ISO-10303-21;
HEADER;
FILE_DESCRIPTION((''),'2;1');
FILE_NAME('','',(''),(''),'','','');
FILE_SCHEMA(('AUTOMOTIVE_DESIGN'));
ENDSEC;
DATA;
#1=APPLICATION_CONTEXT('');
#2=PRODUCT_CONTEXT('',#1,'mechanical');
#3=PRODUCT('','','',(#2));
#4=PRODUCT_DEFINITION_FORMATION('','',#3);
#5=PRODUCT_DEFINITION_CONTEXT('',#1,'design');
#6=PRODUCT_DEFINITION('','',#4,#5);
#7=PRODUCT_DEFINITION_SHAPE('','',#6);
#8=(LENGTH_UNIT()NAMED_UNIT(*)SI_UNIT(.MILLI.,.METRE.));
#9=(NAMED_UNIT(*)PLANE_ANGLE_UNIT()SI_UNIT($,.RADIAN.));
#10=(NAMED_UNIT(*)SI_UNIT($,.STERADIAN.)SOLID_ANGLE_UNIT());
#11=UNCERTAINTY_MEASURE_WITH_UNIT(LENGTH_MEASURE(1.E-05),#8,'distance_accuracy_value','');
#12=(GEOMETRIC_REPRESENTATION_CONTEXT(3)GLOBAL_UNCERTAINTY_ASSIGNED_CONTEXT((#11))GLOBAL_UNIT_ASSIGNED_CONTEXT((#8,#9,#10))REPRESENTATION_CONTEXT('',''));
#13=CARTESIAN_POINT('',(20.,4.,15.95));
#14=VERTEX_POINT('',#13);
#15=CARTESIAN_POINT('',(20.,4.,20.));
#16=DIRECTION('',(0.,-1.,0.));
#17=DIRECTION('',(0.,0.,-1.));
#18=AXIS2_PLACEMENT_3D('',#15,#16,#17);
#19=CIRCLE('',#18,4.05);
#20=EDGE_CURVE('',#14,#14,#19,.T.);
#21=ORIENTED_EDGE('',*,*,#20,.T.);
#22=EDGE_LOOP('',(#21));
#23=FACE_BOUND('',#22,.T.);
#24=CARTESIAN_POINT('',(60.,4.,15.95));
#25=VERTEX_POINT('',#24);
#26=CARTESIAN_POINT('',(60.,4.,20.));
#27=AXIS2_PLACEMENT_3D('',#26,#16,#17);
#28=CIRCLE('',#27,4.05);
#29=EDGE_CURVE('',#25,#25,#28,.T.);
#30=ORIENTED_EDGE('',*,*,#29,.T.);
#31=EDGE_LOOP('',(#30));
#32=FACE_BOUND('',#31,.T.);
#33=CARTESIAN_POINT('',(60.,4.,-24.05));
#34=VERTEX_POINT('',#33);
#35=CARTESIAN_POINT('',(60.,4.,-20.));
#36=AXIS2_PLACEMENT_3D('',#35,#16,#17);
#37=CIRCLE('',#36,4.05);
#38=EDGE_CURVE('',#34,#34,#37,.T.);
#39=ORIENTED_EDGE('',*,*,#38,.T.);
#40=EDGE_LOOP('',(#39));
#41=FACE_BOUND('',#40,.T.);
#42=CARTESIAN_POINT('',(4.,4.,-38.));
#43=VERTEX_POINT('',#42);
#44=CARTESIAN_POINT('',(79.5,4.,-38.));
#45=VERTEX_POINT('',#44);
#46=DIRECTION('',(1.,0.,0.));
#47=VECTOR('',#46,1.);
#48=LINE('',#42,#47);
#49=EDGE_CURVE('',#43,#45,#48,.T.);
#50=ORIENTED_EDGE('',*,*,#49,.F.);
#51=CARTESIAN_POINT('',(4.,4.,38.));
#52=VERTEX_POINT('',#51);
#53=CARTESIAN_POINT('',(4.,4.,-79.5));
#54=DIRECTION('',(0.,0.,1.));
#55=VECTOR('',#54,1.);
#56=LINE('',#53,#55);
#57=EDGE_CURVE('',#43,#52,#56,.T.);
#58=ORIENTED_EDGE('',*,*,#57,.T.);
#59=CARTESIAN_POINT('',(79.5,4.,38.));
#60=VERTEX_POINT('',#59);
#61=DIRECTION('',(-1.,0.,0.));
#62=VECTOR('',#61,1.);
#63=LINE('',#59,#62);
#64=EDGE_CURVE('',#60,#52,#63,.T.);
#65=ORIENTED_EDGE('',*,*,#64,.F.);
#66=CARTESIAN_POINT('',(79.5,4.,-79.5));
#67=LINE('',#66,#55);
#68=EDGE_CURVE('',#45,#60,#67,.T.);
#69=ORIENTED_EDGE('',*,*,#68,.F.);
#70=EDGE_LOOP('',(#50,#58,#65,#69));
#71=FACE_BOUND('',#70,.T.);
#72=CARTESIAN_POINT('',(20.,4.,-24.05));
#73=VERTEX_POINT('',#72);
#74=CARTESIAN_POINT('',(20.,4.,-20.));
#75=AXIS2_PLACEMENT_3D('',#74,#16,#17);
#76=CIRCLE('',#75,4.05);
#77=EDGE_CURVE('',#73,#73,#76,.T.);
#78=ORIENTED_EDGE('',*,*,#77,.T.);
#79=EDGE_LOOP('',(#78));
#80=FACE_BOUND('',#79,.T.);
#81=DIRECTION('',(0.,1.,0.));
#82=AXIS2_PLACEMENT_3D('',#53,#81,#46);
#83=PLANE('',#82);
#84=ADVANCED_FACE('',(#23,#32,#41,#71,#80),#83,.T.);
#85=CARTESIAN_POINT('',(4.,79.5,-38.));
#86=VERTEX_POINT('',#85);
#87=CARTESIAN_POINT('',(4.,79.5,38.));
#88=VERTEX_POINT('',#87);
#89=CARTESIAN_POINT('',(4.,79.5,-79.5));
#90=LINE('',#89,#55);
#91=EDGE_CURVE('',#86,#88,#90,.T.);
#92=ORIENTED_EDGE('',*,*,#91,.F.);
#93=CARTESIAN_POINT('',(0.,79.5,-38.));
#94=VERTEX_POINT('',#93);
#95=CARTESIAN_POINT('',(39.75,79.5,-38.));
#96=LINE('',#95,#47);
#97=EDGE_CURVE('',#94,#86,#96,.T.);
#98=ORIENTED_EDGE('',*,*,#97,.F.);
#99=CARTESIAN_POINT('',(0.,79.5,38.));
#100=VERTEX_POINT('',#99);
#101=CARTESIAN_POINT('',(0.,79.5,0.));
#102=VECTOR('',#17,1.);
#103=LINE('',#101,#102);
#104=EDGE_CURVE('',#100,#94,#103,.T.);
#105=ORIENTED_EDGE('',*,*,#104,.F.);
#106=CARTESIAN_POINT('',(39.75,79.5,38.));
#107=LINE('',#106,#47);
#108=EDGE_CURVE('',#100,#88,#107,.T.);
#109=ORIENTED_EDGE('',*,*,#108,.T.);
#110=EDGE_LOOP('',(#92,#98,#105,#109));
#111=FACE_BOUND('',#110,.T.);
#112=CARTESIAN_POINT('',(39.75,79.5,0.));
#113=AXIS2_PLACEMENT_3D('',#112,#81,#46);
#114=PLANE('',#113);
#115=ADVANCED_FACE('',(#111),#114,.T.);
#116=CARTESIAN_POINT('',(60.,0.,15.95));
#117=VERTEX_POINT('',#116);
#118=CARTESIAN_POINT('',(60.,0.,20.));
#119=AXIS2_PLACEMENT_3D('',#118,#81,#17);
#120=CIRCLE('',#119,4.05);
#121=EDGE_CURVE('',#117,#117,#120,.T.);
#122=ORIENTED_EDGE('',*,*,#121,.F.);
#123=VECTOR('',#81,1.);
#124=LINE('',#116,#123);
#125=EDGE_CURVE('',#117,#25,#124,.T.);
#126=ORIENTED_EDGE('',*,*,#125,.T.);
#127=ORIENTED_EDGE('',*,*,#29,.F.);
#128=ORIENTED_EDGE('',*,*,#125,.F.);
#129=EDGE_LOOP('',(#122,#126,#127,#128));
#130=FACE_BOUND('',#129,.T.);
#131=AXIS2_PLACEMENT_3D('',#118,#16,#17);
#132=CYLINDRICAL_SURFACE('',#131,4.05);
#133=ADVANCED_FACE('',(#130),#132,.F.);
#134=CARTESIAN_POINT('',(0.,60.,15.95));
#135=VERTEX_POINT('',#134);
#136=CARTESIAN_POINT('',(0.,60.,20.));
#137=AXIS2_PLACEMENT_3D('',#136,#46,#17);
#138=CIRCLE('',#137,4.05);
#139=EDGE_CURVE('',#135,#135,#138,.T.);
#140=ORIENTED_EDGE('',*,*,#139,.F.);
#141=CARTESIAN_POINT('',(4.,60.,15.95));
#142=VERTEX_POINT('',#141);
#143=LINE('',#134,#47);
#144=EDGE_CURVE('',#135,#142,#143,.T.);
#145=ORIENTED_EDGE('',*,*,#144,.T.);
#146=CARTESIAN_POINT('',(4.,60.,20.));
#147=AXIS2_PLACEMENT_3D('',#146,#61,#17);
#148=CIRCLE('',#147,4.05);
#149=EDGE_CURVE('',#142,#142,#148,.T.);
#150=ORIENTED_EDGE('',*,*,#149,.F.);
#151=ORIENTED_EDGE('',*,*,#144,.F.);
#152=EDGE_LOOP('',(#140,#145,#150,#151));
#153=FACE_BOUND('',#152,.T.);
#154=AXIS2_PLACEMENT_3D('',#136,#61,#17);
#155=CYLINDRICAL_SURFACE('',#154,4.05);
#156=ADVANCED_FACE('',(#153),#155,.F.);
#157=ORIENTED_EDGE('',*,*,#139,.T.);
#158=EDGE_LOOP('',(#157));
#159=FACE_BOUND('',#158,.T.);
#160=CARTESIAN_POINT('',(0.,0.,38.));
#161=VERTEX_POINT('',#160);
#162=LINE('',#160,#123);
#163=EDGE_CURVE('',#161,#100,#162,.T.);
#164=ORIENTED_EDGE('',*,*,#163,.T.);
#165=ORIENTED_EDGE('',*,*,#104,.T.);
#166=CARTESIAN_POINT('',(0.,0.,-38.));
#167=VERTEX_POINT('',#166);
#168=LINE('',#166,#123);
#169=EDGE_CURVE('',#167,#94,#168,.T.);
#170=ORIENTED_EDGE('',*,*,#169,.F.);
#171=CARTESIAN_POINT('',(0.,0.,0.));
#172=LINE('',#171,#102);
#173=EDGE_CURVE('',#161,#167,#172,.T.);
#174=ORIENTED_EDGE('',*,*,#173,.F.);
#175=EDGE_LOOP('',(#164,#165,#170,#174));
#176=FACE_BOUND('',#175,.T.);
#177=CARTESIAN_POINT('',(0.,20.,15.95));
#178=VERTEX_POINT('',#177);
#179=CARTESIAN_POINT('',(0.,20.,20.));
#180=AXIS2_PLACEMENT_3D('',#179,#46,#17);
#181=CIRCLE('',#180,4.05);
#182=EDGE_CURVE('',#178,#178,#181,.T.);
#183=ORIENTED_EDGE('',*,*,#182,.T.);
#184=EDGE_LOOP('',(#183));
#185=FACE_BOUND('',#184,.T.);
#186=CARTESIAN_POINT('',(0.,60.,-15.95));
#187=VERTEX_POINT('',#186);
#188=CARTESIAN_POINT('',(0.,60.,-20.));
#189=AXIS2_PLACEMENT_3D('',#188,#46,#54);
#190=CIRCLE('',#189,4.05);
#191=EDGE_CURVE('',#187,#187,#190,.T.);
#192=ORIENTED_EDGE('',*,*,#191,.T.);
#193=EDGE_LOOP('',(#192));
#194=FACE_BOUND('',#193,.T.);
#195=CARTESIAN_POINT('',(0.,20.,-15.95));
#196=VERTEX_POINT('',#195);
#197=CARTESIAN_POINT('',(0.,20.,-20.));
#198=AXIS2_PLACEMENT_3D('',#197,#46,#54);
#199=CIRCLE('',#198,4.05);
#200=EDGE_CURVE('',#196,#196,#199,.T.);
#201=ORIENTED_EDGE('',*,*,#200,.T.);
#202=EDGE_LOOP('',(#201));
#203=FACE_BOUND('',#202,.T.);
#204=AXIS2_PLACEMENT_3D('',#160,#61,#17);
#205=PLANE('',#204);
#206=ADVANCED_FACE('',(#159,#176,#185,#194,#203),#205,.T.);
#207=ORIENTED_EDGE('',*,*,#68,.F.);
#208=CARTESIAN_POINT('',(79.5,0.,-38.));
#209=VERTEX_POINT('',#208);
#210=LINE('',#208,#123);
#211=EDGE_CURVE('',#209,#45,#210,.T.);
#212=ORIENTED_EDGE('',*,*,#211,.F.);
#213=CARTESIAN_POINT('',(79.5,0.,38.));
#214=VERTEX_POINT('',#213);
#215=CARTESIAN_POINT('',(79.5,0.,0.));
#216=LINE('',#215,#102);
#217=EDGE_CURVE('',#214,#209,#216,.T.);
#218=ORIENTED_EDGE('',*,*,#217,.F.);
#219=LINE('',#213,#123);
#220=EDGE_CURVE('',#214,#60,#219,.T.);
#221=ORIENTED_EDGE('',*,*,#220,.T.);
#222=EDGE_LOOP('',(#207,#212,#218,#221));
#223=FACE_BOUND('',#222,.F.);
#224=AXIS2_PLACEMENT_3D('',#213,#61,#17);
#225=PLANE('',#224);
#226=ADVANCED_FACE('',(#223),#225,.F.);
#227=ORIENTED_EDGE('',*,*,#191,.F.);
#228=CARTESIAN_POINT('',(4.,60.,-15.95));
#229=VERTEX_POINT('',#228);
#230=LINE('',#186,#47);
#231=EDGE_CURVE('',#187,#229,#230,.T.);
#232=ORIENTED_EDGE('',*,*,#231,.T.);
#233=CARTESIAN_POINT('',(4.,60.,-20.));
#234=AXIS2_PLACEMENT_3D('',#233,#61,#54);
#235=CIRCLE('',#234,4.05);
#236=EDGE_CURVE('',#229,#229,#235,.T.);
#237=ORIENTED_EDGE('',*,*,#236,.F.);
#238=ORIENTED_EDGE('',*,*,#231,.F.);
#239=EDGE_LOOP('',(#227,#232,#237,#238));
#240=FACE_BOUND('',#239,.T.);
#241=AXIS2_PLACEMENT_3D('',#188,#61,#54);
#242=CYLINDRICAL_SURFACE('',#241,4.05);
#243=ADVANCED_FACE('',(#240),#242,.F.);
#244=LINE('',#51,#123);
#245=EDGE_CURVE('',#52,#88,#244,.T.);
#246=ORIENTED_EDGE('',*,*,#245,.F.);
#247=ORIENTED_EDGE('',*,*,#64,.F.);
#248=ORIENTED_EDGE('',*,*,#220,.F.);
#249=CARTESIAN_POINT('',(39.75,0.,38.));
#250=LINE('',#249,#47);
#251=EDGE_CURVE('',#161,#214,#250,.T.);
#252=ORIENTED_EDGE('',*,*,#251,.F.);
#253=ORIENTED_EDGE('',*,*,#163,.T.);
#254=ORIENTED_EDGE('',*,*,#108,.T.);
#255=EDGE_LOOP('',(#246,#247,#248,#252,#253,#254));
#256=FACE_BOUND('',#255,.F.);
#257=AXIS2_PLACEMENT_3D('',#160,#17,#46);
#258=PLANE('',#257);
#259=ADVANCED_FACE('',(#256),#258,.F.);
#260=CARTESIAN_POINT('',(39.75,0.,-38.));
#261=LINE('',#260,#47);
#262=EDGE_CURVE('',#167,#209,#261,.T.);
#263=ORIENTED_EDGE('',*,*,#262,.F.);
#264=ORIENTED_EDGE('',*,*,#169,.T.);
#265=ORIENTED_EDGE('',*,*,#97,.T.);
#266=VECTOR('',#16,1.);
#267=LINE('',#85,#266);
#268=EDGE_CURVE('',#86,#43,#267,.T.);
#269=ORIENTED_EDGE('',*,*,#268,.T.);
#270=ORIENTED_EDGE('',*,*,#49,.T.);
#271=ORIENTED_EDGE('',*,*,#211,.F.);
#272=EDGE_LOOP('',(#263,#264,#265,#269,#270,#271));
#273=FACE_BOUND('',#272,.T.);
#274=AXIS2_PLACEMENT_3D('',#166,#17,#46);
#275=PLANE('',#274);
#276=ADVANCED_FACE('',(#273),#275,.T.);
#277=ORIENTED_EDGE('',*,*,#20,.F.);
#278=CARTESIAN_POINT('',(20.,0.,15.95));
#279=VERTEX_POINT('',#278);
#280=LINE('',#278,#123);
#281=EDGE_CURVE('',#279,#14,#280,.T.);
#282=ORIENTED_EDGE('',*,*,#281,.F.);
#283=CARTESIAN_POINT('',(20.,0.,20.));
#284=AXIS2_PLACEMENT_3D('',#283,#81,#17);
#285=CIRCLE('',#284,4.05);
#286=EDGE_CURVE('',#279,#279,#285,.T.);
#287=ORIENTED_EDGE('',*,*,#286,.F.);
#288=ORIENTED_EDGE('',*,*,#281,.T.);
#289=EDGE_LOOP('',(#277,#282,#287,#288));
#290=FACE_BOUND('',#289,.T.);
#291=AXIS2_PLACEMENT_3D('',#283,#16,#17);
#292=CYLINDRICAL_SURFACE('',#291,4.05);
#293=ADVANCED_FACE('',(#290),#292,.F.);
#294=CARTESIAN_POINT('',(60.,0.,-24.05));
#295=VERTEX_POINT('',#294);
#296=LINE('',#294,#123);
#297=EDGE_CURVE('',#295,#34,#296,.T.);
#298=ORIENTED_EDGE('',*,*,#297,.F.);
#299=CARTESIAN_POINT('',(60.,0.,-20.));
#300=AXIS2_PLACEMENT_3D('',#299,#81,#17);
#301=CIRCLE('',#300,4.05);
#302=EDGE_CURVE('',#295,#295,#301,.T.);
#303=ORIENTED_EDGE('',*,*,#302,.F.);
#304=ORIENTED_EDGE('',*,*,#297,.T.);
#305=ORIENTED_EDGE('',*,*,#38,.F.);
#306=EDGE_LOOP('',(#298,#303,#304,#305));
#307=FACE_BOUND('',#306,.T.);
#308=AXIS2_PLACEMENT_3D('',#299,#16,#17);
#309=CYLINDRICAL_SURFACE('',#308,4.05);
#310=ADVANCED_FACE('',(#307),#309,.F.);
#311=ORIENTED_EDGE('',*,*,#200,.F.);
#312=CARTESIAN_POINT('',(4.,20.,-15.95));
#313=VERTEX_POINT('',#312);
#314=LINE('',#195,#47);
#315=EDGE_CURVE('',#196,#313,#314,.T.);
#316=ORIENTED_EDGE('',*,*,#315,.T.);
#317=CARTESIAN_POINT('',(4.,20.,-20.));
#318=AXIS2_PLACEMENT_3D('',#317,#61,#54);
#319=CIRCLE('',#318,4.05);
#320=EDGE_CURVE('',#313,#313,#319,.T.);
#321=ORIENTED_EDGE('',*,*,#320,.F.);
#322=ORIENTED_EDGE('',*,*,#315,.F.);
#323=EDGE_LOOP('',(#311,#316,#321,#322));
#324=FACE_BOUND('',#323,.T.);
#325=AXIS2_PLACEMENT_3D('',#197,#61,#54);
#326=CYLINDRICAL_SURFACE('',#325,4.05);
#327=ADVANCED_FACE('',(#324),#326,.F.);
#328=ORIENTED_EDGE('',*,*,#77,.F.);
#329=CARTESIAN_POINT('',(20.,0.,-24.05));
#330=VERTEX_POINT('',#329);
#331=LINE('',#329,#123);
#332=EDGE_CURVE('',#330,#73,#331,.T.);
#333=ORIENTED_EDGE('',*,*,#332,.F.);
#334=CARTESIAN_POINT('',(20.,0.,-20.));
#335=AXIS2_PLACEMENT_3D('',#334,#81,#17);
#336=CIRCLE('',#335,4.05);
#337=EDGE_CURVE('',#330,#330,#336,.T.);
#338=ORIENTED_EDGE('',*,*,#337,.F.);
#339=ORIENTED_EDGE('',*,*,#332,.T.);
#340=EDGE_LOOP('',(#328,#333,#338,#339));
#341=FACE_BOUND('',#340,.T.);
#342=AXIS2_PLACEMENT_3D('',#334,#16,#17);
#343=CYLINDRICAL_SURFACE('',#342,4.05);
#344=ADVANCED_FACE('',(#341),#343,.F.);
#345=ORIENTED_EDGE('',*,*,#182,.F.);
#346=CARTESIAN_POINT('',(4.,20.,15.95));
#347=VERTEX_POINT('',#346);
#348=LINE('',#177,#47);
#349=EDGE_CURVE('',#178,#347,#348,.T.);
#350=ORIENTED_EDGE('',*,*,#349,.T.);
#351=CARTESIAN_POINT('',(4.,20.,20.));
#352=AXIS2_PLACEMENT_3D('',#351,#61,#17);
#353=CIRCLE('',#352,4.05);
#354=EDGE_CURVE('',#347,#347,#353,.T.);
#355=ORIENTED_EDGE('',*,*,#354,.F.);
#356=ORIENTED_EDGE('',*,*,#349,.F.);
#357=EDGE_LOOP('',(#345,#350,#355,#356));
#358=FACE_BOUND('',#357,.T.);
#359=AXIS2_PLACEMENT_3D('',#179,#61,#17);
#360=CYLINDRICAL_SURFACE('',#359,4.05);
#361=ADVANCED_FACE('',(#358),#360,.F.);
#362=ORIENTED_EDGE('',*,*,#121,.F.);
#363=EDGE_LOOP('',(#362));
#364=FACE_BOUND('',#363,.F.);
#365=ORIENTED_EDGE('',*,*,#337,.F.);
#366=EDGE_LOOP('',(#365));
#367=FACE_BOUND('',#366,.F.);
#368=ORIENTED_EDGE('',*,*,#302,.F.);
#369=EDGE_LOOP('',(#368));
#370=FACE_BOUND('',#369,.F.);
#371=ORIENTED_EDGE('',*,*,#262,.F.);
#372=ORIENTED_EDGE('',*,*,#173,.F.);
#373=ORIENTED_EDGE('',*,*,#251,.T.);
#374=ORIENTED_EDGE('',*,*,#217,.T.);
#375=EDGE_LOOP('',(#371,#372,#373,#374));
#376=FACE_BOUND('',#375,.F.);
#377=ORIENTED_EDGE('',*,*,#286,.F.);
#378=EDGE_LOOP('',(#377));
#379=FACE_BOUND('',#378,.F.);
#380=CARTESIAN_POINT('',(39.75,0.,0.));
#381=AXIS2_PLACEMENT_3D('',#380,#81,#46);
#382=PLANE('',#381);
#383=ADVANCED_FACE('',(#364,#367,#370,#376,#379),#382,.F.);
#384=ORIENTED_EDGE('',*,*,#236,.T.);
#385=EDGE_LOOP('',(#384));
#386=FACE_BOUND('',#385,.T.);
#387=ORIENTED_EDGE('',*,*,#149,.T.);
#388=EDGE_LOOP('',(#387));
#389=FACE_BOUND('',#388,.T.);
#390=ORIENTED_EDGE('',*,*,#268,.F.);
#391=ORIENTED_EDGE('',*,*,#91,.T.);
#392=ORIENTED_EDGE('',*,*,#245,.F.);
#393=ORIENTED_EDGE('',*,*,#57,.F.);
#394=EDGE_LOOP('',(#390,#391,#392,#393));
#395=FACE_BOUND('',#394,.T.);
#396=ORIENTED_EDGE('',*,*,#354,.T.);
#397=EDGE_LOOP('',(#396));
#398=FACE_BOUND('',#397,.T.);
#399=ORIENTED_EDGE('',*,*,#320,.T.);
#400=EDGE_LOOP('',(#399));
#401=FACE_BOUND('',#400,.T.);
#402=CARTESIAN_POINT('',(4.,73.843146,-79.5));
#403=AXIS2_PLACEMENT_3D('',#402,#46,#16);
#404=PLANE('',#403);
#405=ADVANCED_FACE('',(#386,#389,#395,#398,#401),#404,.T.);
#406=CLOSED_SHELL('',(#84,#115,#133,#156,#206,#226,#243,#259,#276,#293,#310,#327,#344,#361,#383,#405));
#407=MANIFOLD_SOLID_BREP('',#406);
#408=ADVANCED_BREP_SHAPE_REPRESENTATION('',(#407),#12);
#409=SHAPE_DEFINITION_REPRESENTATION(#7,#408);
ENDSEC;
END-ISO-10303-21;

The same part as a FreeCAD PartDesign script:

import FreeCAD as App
import Part
import Sketcher

V = App.Vector


def add_polygon(sketch, points):
    """Adds a closed chain of lines whose ends are joined by coincident constraints."""
    first, n = sketch.GeometryCount, len(points)
    for a, b in zip(points, points[1:] + points[:1]):
        sketch.addGeometry(Part.LineSegment(App.Vector(*a, 0), App.Vector(*b, 0)), False)
    for i in range(n):
        sketch.addConstraint(Sketcher.Constraint("Coincident", first + i, 2, first + (i + 1) % n, 1))

doc = App.newDocument("Part")
body = doc.addObject("PartDesign::Body", "Body")

sketch1 = body.newObject("Sketcher::SketchObject", "Sketch")
sketch1.AttachmentSupport = (doc.getObject("XZ_Plane"), [""])
sketch1.MapMode = "FlatFace"
add_polygon(sketch1, [(0, -38), (0, 38), (79.5, 38), (79.5, -38)])
sketch1.addGeometry(Part.Circle(V(20, 20, 0), V(0, 0, 1), 4), False)
sketch1.addGeometry(Part.Circle(V(60, 20, 0), V(0, 0, 1), 4), False)
sketch1.addGeometry(Part.Circle(V(20, -20, 0), V(0, 0, 1), 4), False)
sketch1.addGeometry(Part.Circle(V(60, -20, 0), V(0, 0, 1), 4), False)
sketch1.addConstraint([
    Sketcher.Constraint("Vertical", 0),
    Sketcher.Constraint("Horizontal", 1),
    Sketcher.Constraint("Vertical", 2),
    Sketcher.Constraint("Horizontal", 3),
    Sketcher.Constraint("Equal", 4, 5),
    Sketcher.Constraint("Equal", 5, 6),
    Sketcher.Constraint("Equal", 6, 7),
    Sketcher.Constraint("Symmetric", 0, 2, 3, 2, -1, 1),
    Sketcher.Constraint("Symmetric", 4, 3, 6, 3, -1),
    Sketcher.Constraint("Symmetric", 5, 3, 7, 3, -1),
    Sketcher.Constraint("Horizontal", 4, 3, 5, 3),
    Sketcher.Constraint("Diameter", 4, 8.1),
    Sketcher.Constraint("DistanceY", 0, 1, 0, 2, 76.0),
    Sketcher.Constraint("DistanceX", 1, 1, 1, 2, 79.5),
    Sketcher.Constraint("DistanceX", -1, 1, 4, 3, 20.0),
    Sketcher.Constraint("DistanceY", -1, 1, 4, 3, 20.0),
    Sketcher.Constraint("DistanceX", -1, 1, 5, 3, 60.0),
])
pad1 = body.newObject("PartDesign::Pad", "Pad")
pad1.Profile = sketch1
pad1.Length = 79.5
pad1.Reversed = True

sketch2 = body.newObject("Sketcher::SketchObject", "Sketch001")
sketch2.AttachmentSupport = (doc.getObject("YZ_Plane"), [""])
sketch2.MapMode = "FlatFace"
sketch2.addGeometry([
    Part.Circle(V(60, 20, 0), V(0, 0, 1), 4),
    Part.Circle(V(60, -20, 0), V(0, 0, 1), 4),
    Part.Circle(V(20, -20, 0), V(0, 0, 1), 4),
    Part.Circle(V(20, 20, 0), V(0, 0, 1), 4),
], False)
sketch2.addConstraint([
    Sketcher.Constraint("Equal", 0, 1),
    Sketcher.Constraint("Equal", 1, 2),
    Sketcher.Constraint("Equal", 2, 3),
    Sketcher.Constraint("Symmetric", 0, 3, 1, 3, -1),
    Sketcher.Constraint("Symmetric", 2, 3, 3, 3, -1),
    Sketcher.Constraint("Horizontal", 1, 3, 2, 3),
    Sketcher.Constraint("Diameter", 0, 8.1),
    Sketcher.Constraint("DistanceX", -1, 1, 0, 3, 60.0),
    Sketcher.Constraint("DistanceY", -1, 1, 0, 3, 20.0),
    Sketcher.Constraint("DistanceX", -1, 1, 2, 3, 20.0),
])
pocket1 = body.newObject("PartDesign::Pocket", "Pocket")
pocket1.Profile = sketch2
pocket1.Length = 79.5
pocket1.Reversed = True

sketch3 = body.newObject("Sketcher::SketchObject", "Sketch002")
sketch3.AttachmentSupport = (doc.getObject("XY_Plane"), [""])
sketch3.MapMode = "FlatFace"
add_polygon(sketch3, [(4, 74), (4, 4), (74, 4)])
add_polygon(sketch3, [(4, 80), (80, 4), (80, 80)])
sketch3.addConstraint([
    Sketcher.Constraint("Vertical", 0),
    Sketcher.Constraint("Horizontal", 1),
    Sketcher.Constraint("Vertical", 4),
    Sketcher.Constraint("Horizontal", 5),
    Sketcher.Constraint("Parallel", 2, 3),
    Sketcher.Constraint("Horizontal", 1, 2, 3, 2),
    Sketcher.Constraint("Vertical", 2, 2, 5, 2),
    Sketcher.Constraint("Equal", 1, 0),
    Sketcher.Constraint("DistanceX", 5, 2, 5, 1, 75.5),
    Sketcher.Constraint("DistanceX", -1, 1, 0, 2, 4.0),
    Sketcher.Constraint("DistanceY", -1, 1, 0, 2, 4.0),
    Sketcher.Constraint("DistanceX", 1, 1, 1, 2, 69.843146),
])
pocket2 = body.newObject("PartDesign::Pocket", "Pocket001")
pocket2.Profile = sketch3
pocket2.Type = "ThroughAll"
pocket2.Midplane = True

sketch4 = body.newObject("Sketcher::SketchObject", "Sketch003")
sketch4.AttachmentSupport = (doc.getObject("XY_Plane"), [""])
sketch4.MapMode = "FlatFace"
add_polygon(sketch4, [(4, 81), (4, 4), (85, 4), (85, 81)])
sketch4.addConstraint([
    Sketcher.Constraint("Vertical", 0),
    Sketcher.Constraint("Horizontal", 1),
    Sketcher.Constraint("Vertical", 2),
    Sketcher.Constraint("Horizontal", 3),
    Sketcher.Constraint("DistanceX", -1, 1, 0, 2, 4.0),
    Sketcher.Constraint("DistanceY", -1, 1, 0, 2, 4.0),
    Sketcher.Constraint("DistanceY", 0, 2, 0, 1, 76.525441),
    Sketcher.Constraint("DistanceX", 1, 1, 1, 2, 80.771817),
])
pocket3 = body.newObject("PartDesign::Pocket", "Pocket002")
pocket3.Profile = sketch4
pocket3.Type = "ThroughAll"
pocket3.Midplane = True

doc.recompute()
